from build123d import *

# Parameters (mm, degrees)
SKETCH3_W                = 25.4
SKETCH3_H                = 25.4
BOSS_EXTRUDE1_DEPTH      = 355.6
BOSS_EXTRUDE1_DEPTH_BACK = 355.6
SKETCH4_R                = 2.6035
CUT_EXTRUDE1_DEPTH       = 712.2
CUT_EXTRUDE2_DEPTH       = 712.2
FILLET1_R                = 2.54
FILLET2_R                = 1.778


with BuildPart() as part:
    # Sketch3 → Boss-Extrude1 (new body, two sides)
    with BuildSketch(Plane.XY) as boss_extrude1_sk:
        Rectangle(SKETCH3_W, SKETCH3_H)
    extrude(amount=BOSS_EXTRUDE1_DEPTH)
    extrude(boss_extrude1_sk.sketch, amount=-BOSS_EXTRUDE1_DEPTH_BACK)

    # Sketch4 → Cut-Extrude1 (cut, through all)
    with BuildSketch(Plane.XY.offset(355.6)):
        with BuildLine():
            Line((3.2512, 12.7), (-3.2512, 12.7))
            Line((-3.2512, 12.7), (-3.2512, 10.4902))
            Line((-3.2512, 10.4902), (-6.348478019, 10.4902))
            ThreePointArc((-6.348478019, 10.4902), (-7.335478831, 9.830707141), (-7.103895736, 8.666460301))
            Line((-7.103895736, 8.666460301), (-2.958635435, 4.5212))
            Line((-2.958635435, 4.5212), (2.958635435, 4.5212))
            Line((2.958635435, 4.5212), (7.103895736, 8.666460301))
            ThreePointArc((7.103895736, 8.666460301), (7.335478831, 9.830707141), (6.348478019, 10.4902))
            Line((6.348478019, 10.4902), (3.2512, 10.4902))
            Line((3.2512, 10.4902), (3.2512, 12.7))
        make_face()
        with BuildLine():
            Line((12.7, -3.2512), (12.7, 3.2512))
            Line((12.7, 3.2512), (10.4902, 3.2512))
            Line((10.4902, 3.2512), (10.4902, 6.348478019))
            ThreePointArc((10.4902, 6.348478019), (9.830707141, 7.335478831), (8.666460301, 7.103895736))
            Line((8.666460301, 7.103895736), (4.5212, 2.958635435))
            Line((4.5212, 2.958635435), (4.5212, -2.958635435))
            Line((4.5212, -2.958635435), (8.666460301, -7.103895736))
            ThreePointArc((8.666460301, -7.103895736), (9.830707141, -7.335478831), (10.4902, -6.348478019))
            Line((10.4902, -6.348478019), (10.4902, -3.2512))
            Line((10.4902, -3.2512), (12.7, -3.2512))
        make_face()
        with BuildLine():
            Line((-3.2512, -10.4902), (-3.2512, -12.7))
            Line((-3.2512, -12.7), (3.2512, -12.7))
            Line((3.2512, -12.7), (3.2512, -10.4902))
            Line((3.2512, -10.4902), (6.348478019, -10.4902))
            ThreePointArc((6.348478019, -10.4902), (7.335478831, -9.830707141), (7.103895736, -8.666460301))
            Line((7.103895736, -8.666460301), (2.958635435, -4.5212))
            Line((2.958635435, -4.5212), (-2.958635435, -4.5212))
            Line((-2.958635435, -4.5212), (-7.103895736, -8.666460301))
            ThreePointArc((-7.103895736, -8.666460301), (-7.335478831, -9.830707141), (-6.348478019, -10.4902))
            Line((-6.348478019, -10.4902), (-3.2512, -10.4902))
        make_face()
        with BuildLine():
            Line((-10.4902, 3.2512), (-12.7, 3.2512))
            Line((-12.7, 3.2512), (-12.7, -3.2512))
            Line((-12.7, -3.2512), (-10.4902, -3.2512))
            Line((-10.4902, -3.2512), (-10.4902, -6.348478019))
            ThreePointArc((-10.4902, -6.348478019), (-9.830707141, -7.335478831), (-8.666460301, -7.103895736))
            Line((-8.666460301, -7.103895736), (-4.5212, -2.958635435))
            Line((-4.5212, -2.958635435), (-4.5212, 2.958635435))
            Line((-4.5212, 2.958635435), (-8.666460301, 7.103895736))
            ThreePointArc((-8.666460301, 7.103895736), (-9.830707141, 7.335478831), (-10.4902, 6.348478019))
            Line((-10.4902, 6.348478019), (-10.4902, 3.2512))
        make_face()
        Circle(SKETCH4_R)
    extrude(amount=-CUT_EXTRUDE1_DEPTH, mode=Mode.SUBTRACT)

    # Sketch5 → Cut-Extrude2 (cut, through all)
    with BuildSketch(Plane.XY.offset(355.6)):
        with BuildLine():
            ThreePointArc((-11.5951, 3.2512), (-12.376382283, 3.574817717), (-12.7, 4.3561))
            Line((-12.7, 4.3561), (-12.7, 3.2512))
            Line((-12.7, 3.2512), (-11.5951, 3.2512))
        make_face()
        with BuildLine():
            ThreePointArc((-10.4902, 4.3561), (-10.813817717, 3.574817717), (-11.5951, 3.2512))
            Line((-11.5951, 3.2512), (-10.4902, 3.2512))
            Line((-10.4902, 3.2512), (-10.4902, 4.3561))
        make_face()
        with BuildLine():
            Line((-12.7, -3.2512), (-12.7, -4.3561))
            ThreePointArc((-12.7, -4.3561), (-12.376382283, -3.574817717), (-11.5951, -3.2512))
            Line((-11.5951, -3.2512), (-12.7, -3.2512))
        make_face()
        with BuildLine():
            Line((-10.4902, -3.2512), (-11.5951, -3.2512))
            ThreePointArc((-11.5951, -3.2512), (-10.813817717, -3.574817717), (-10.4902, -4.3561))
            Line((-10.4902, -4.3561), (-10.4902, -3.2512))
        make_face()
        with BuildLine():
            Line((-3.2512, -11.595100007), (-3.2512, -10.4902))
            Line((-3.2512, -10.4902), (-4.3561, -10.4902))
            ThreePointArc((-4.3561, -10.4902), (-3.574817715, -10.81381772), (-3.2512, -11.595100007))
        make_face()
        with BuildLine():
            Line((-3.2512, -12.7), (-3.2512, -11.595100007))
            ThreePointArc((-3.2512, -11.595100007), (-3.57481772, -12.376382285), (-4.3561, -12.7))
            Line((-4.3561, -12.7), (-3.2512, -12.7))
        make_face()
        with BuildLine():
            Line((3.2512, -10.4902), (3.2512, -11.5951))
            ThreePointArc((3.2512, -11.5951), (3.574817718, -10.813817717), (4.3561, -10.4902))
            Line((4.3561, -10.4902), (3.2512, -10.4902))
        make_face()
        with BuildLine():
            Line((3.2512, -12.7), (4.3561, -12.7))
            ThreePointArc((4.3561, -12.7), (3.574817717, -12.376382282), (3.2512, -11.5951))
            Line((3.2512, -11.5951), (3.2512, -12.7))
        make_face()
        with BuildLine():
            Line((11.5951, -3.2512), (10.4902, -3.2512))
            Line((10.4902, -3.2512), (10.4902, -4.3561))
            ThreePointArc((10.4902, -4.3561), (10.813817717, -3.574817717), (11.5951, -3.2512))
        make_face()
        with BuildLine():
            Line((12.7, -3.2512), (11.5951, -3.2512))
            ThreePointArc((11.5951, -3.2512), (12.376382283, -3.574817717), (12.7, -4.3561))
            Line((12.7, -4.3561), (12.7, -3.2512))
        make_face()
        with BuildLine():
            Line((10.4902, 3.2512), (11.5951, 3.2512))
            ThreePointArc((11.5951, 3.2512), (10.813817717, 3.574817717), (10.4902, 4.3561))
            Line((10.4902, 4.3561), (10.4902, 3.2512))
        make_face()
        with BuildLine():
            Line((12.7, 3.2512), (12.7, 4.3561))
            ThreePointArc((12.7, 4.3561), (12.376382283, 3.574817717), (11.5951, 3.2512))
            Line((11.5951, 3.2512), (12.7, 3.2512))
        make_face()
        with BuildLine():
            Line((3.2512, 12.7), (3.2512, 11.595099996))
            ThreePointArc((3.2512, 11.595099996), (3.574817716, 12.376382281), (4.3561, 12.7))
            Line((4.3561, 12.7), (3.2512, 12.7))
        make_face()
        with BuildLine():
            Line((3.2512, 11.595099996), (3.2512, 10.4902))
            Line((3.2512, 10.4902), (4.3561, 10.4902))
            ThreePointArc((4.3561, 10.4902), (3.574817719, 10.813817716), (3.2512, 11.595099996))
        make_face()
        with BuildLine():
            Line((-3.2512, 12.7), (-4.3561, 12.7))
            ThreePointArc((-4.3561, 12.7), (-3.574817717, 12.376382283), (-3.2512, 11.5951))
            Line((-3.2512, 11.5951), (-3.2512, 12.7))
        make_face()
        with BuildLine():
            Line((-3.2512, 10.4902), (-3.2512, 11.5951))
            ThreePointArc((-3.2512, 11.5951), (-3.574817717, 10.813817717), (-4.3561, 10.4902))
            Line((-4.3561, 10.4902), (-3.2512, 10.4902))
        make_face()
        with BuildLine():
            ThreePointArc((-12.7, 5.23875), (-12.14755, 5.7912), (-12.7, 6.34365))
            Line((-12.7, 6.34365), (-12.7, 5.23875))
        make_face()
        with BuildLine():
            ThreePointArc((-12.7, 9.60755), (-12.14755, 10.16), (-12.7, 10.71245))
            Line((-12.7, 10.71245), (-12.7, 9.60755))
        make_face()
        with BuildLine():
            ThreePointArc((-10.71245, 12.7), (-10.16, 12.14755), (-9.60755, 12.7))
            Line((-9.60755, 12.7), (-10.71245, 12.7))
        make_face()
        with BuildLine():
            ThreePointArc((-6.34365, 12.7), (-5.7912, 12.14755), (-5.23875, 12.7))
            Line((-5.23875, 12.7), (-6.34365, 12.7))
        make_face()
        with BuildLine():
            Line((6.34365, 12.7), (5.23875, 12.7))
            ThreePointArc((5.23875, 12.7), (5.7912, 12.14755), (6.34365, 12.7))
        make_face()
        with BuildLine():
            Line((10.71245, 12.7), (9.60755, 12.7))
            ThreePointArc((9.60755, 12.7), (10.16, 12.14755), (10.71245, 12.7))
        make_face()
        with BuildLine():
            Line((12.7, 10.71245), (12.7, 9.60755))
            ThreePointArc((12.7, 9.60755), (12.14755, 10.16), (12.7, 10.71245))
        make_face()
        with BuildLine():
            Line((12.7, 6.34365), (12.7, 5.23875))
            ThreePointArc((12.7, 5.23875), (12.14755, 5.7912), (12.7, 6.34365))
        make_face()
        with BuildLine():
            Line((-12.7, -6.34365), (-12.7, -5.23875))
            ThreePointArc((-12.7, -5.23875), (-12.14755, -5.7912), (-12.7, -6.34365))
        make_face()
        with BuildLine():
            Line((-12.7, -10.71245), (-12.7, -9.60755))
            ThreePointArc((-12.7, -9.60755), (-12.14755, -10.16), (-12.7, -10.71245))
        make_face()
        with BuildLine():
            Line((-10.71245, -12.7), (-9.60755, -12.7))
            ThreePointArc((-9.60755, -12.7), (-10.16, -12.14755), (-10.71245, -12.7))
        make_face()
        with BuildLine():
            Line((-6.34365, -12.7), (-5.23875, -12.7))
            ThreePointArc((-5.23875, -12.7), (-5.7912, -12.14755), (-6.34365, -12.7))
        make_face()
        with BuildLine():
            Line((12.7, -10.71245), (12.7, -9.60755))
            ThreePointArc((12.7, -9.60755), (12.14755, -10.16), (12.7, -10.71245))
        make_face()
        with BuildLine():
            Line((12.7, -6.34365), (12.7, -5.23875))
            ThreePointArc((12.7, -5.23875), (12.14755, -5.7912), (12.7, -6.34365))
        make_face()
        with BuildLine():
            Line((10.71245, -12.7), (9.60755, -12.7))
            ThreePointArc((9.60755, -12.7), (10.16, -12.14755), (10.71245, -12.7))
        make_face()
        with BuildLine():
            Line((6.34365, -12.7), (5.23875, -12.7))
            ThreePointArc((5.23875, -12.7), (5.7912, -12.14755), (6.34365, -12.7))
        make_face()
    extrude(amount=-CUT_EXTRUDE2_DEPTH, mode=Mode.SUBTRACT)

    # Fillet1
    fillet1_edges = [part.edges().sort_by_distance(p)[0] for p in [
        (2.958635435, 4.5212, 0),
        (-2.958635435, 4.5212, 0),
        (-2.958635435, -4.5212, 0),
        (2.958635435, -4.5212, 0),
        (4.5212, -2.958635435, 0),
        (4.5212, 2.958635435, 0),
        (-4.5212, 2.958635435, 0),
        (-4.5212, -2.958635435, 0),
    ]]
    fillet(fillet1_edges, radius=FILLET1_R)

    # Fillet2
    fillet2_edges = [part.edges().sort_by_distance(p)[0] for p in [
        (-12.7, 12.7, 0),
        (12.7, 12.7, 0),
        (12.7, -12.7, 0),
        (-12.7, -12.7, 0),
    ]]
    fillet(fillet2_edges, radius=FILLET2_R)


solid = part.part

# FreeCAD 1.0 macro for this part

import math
import FreeCAD as App
import Part
import Sketcher
from FreeCAD import Vector
Q = App.Units.Quantity


def edges_at(feature, points):
    """Names of the edges that pass closest to the given points."""
    edges = feature.Shape.Edges
    near = lambda p: min(range(len(edges)), key=lambda i: edges[i].distToShape(Part.Vertex(*p))[0])
    return sorted({f"Edge{near(p) + 1}" for p in points})

doc = App.newDocument("Part")
body = doc.addObject("PartDesign::Body", "Body")

# Sketch on XY plane
sketch1 = body.newObject("Sketcher::SketchObject", "Sketch")
sketch1.AttachmentSupport = (doc.getObject("XY_Plane"), [""])
sketch1.MapMode = "FlatFace"
sketch1.addGeometry([
    Part.LineSegment(Vector(-13, 13, 0), Vector(-13, -13, 0)),
    Part.LineSegment(Vector(-13, -13, 0), Vector(13, -13, 0)),
    Part.LineSegment(Vector(13, -13, 0), Vector(13, 13, 0)),
    Part.LineSegment(Vector(13, 13, 0), Vector(-13, 13, 0)),
], False)
sketch1.addConstraint([
    Sketcher.Constraint("Coincident", 0, 2, 1, 1),
    Sketcher.Constraint("Coincident", 1, 2, 2, 1),
    Sketcher.Constraint("Coincident", 2, 2, 3, 1),
    Sketcher.Constraint("Coincident", 3, 2, 0, 1),
    Sketcher.Constraint("Vertical", 0),
    Sketcher.Constraint("Horizontal", 1),
    Sketcher.Constraint("Vertical", 2),
    Sketcher.Constraint("Horizontal", 3),
    Sketcher.Constraint("Symmetric", 0, 2, 2, 2, -1, 1),
    Sketcher.Constraint("Equal", 3, 0),
    Sketcher.Constraint("DistanceX", 1, 1, 1, 2, Q("1 in")),
])
pad1 = body.newObject("PartDesign::Pad", "Pad")
pad1.Profile = sketch1
pad1.Type = "TwoLengths"
pad1.Length = Q("14 in")
pad1.Length2 = Q("14 in")

# Sketch on XY plane
sketch2 = body.newObject("Sketcher::SketchObject", "Sketch001")
sketch2.AttachmentSupport = (doc.getObject("XY_Plane"), [""])
sketch2.MapMode = "FlatFace"
sketch2.AttachmentOffset = App.Placement(Vector(0, 0, 14 * 25.4), App.Rotation())
sketch2.addGeometry([
    Part.LineSegment(Vector(3.3, 12.7, 0), Vector(-3.3, 12.7, 0)),  # 0
    Part.LineSegment(Vector(-3.3, 12.7, 0), Vector(-3.3, 10.5, 0)),  # 1
    Part.LineSegment(Vector(-3.3, 10.5, 0), Vector(-6.3, 10.5, 0)),  # 2
    Part.ArcOfCircle(Part.Circle(Vector(-6.3, 9.4, 0), Vector(0, 0, 1), 1.1), math.radians(90), math.radians(225)),  # 3
    Part.LineSegment(Vector(-7.1, 8.7, 0), Vector(-3, 4.5, 0)),  # 4
    Part.LineSegment(Vector(-3, 4.5, 0), Vector(3, 4.5, 0)),  # 5
    Part.LineSegment(Vector(3, 4.5, 0), Vector(7.1, 8.7, 0)),  # 6
    Part.ArcOfCircle(Part.Circle(Vector(6.3, 9.4, 0), Vector(0, 0, 1), 1.1), math.radians(-45), math.radians(90)),  # 7
    Part.LineSegment(Vector(6.3, 10.5, 0), Vector(3.3, 10.5, 0)),  # 8
    Part.LineSegment(Vector(3.3, 10.5, 0), Vector(3.3, 12.7, 0)),  # 9
    Part.LineSegment(Vector(12.7, -3.3, 0), Vector(12.7, 3.3, 0)),  # 10
    Part.LineSegment(Vector(12.7, 3.3, 0), Vector(10.5, 3.3, 0)),  # 11
    Part.LineSegment(Vector(10.5, 3.3, 0), Vector(10.5, 6.3, 0)),  # 12
    Part.ArcOfCircle(Part.Circle(Vector(9.4, 6.3, 0), Vector(0, 0, 1), 1.1), math.radians(0), math.radians(135)),  # 13
    Part.LineSegment(Vector(8.7, 7.1, 0), Vector(4.5, 3, 0)),  # 14
    Part.LineSegment(Vector(4.5, 3, 0), Vector(4.5, -3, 0)),  # 15
    Part.LineSegment(Vector(4.5, -3, 0), Vector(8.7, -7.1, 0)),  # 16
    Part.ArcOfCircle(Part.Circle(Vector(9.4, -6.3, 0), Vector(0, 0, 1), 1.1), math.radians(-135), math.radians(0)),  # 17
    Part.LineSegment(Vector(10.5, -6.3, 0), Vector(10.5, -3.3, 0)),  # 18
    Part.LineSegment(Vector(10.5, -3.3, 0), Vector(12.7, -3.3, 0)),  # 19
    Part.LineSegment(Vector(-3.3, -10.5, 0), Vector(-3.3, -12.7, 0)),  # 20
    Part.LineSegment(Vector(-3.3, -12.7, 0), Vector(3.3, -12.7, 0)),  # 21
    Part.LineSegment(Vector(3.3, -12.7, 0), Vector(3.3, -10.5, 0)),  # 22
    Part.LineSegment(Vector(3.3, -10.5, 0), Vector(6.3, -10.5, 0)),  # 23
    Part.ArcOfCircle(Part.Circle(Vector(6.3, -9.4, 0), Vector(0, 0, 1), 1.1), math.radians(-90), math.radians(45)),  # 24
    Part.LineSegment(Vector(7.1, -8.7, 0), Vector(3, -4.5, 0)),  # 25
    Part.LineSegment(Vector(3, -4.5, 0), Vector(-3, -4.5, 0)),  # 26
    Part.LineSegment(Vector(-3, -4.5, 0), Vector(-7.1, -8.7, 0)),  # 27
    Part.ArcOfCircle(Part.Circle(Vector(-6.3, -9.4, 0), Vector(0, 0, 1), 1.1), math.radians(135), math.radians(270)),  # 28
    Part.LineSegment(Vector(-6.3, -10.5, 0), Vector(-3.3, -10.5, 0)),  # 29
    Part.LineSegment(Vector(-10.5, 3.3, 0), Vector(-12.7, 3.3, 0)),  # 30
    Part.LineSegment(Vector(-12.7, 3.3, 0), Vector(-12.7, -3.3, 0)),  # 31
    Part.LineSegment(Vector(-12.7, -3.3, 0), Vector(-10.5, -3.3, 0)),  # 32
    Part.LineSegment(Vector(-10.5, -3.3, 0), Vector(-10.5, -6.3, 0)),  # 33
    Part.ArcOfCircle(Part.Circle(Vector(-9.4, -6.3, 0), Vector(0, 0, 1), 1.1), math.radians(-180), math.radians(-45)),  # 34
    Part.LineSegment(Vector(-8.7, -7.1, 0), Vector(-4.5, -3, 0)),  # 35
    Part.LineSegment(Vector(-4.5, -3, 0), Vector(-4.5, 3, 0)),  # 36
    Part.LineSegment(Vector(-4.5, 3, 0), Vector(-8.7, 7.1, 0)),  # 37
    Part.ArcOfCircle(Part.Circle(Vector(-9.4, 6.3, 0), Vector(0, 0, 1), 1.1), math.radians(45), math.radians(180)),  # 38
    Part.LineSegment(Vector(-10.5, 6.3, 0), Vector(-10.5, 3.3, 0)),  # 39
    Part.Circle(Vector(0, 0, 0), Vector(0, 0, 1), 2.6),  # 40
], False)
sketch2.addConstraint([
    Sketcher.Constraint("Coincident", 0, 2, 1, 1),
    Sketcher.Constraint("Coincident", 1, 2, 2, 1),
    Sketcher.Constraint("Tangent", 2, 2, 3, 1),
    Sketcher.Constraint("Tangent", 3, 2, 4, 1),
    Sketcher.Constraint("Coincident", 4, 2, 5, 1),
    Sketcher.Constraint("Coincident", 5, 2, 6, 1),
    Sketcher.Constraint("Tangent", 6, 2, 7, 1),
    Sketcher.Constraint("Tangent", 7, 2, 8, 1),
    Sketcher.Constraint("Coincident", 8, 2, 9, 1),
    Sketcher.Constraint("Coincident", 9, 2, 0, 1),
    Sketcher.Constraint("Coincident", 10, 2, 11, 1),
    Sketcher.Constraint("Coincident", 11, 2, 12, 1),
    Sketcher.Constraint("Tangent", 12, 2, 13, 1),
    Sketcher.Constraint("Tangent", 13, 2, 14, 1),
    Sketcher.Constraint("Coincident", 14, 2, 15, 1),
    Sketcher.Constraint("Coincident", 15, 2, 16, 1),
    Sketcher.Constraint("Tangent", 16, 2, 17, 1),
    Sketcher.Constraint("Tangent", 17, 2, 18, 1),
    Sketcher.Constraint("Coincident", 18, 2, 19, 1),
    Sketcher.Constraint("Coincident", 19, 2, 10, 1),
    Sketcher.Constraint("Coincident", 20, 2, 21, 1),
    Sketcher.Constraint("Coincident", 21, 2, 22, 1),
    Sketcher.Constraint("Coincident", 22, 2, 23, 1),
    Sketcher.Constraint("Tangent", 23, 2, 24, 1),
    Sketcher.Constraint("Tangent", 24, 2, 25, 1),
    Sketcher.Constraint("Coincident", 25, 2, 26, 1),
    Sketcher.Constraint("Coincident", 26, 2, 27, 1),
    Sketcher.Constraint("Tangent", 27, 2, 28, 1),
    Sketcher.Constraint("Tangent", 28, 2, 29, 1),
    Sketcher.Constraint("Coincident", 29, 2, 20, 1),
    Sketcher.Constraint("Coincident", 30, 2, 31, 1),
    Sketcher.Constraint("Coincident", 31, 2, 32, 1),
    Sketcher.Constraint("Coincident", 32, 2, 33, 1),
    Sketcher.Constraint("Tangent", 33, 2, 34, 1),
    Sketcher.Constraint("Tangent", 34, 2, 35, 1),
    Sketcher.Constraint("Coincident", 35, 2, 36, 1),
    Sketcher.Constraint("Coincident", 36, 2, 37, 1),
    Sketcher.Constraint("Tangent", 37, 2, 38, 1),
    Sketcher.Constraint("Tangent", 38, 2, 39, 1),
    Sketcher.Constraint("Coincident", 39, 2, 30, 1),
    Sketcher.Constraint("Horizontal", 0),
    Sketcher.Constraint("Vertical", 1),
    Sketcher.Constraint("Horizontal", 2),
    Sketcher.Constraint("Horizontal", 5),
    Sketcher.Constraint("Horizontal", 8),
    Sketcher.Constraint("Vertical", 9),
    Sketcher.Constraint("Vertical", 10),
    Sketcher.Constraint("Horizontal", 11),
    Sketcher.Constraint("Vertical", 12),
    Sketcher.Constraint("Vertical", 15),
    Sketcher.Constraint("Vertical", 18),
    Sketcher.Constraint("Horizontal", 19),
    Sketcher.Constraint("Vertical", 20),
    Sketcher.Constraint("Horizontal", 21),
    Sketcher.Constraint("Vertical", 22),
    Sketcher.Constraint("Horizontal", 23),
    Sketcher.Constraint("Horizontal", 26),
    Sketcher.Constraint("Horizontal", 29),
    Sketcher.Constraint("Horizontal", 30),
    Sketcher.Constraint("Vertical", 31),
    Sketcher.Constraint("Horizontal", 32),
    Sketcher.Constraint("Vertical", 33),
    Sketcher.Constraint("Vertical", 36),
    Sketcher.Constraint("Vertical", 39),
    Sketcher.Constraint("Coincident", 40, 3, -1, 1),
    Sketcher.Constraint("Equal", 3, 7),
    Sketcher.Constraint("Equal", 7, 13),
    Sketcher.Constraint("Equal", 13, 17),
    Sketcher.Constraint("Equal", 17, 24),
    Sketcher.Constraint("Equal", 24, 28),
    Sketcher.Constraint("Equal", 28, 34),
    Sketcher.Constraint("Equal", 34, 38),
    Sketcher.Constraint("Symmetric", 3, 3, 24, 3, -1, 1),
    Sketcher.Constraint("Symmetric", 7, 3, 28, 3, -1, 1),
    Sketcher.Constraint("Symmetric", 13, 3, 34, 3, -1, 1),
    Sketcher.Constraint("Symmetric", 17, 3, 38, 3, -1, 1),
    Sketcher.Constraint("Symmetric", 9, 2, 20, 2, -1, 1),
    Sketcher.Constraint("Symmetric", 4, 2, 25, 2, -1, 1),
    Sketcher.Constraint("Symmetric", 19, 2, 30, 2, -1, 1),
    Sketcher.Constraint("Symmetric", 14, 2, 35, 2, -1, 1),
    Sketcher.Constraint("Symmetric", 3, 3, 7, 3, -2),
    Sketcher.Constraint("Symmetric", 17, 3, 34, 3, -2),
    Sketcher.Constraint("Perpendicular", 4, 6),
    Sketcher.Constraint("Parallel", 6, 14),
    Sketcher.Constraint("Perpendicular", 14, 16),
    Sketcher.Constraint("Perpendicular", 25, 27),
    Sketcher.Constraint("Perpendicular", 35, 37),
    Sketcher.Constraint("Horizontal", 3, 2, 6, 2),
    Sketcher.Constraint("Horizontal", 11, 2, 30, 2),
    Sketcher.Constraint("Horizontal", 19, 2, 31, 2),
    Sketcher.Constraint("Vertical", 1, 2, 20, 2),
    Sketcher.Constraint("Vertical", 9, 2, 21, 2),
    Sketcher.Constraint("Equal", 32, 1),
    Sketcher.Constraint("Equal", 21, 10),
    Sketcher.Constraint("Equal", 29, 12),
    Sketcher.Constraint("Equal", 26, 15),
    Sketcher.Constraint("Diameter", 40, Q("0.205 in")),
    Sketcher.Constraint("DistanceY", -1, 1, 0, 2, Q("0.5 in")),
    Sketcher.Constraint("DistanceX", -1, 1, 10, 2, Q("0.5 in")),
    Sketcher.Constraint("DistanceX", 0, 2, 0, 1, Q("0.256 in")),
    Sketcher.Constraint("DistanceX", 11, 2, 11, 1, Q("0.087 in")),
    Sketcher.Constraint("DistanceY", 10, 2, 5, 2, Q("0.05 in")),
    Sketcher.Constraint("Radius", 3, Q("1.068322 mm")),
    Sketcher.Constraint("DistanceX", 7, 3, 13, 3, Q("0.121 in")),
])
pocket1 = body.newObject("PartDesign::Pocket", "Pocket")
pocket1.Profile = sketch2
pocket1.Type = "ThroughAll"

# Sketch on XY plane
sketch3 = body.newObject("Sketcher::SketchObject", "Sketch002")
sketch3.AttachmentSupport = (doc.getObject("XY_Plane"), [""])
sketch3.MapMode = "FlatFace"
sketch3.AttachmentOffset = App.Placement(Vector(0, 0, 14 * 25.4), App.Rotation())
sketch3.addGeometry([
    Part.ArcOfCircle(Part.Circle(Vector(-11.6, 4.4, 0), Vector(0, 0, 1), 1.1), math.radians(180), math.radians(270)),  # 0
    Part.LineSegment(Vector(-12.7, 4.4, 0), Vector(-12.7, 3.3, 0)),  # 1
    Part.LineSegment(Vector(-12.7, 3.3, 0), Vector(-11.6, 3.3, 0)),  # 2
    Part.ArcOfCircle(Part.Circle(Vector(-11.6, 4.4, 0), Vector(0, 0, 1), 1.1), math.radians(-90), math.radians(0)),  # 3
    Part.LineSegment(Vector(-11.6, 3.3, 0), Vector(-10.5, 3.3, 0)),  # 4
    Part.LineSegment(Vector(-10.5, 3.3, 0), Vector(-10.5, 4.4, 0)),  # 5
    Part.LineSegment(Vector(-12.7, -3.3, 0), Vector(-12.7, -4.4, 0)),  # 6
    Part.ArcOfCircle(Part.Circle(Vector(-11.6, -4.4, 0), Vector(0, 0, 1), 1.1), math.radians(90), math.radians(180)),  # 7
    Part.LineSegment(Vector(-11.6, -3.3, 0), Vector(-12.7, -3.3, 0)),  # 8
    Part.LineSegment(Vector(-10.5, -3.3, 0), Vector(-11.6, -3.3, 0)),  # 9
    Part.ArcOfCircle(Part.Circle(Vector(-11.6, -4.4, 0), Vector(0, 0, 1), 1.1), math.radians(0), math.radians(90)),  # 10
    Part.LineSegment(Vector(-10.5, -4.4, 0), Vector(-10.5, -3.3, 0)),  # 11
    Part.LineSegment(Vector(-3.3, -11.6, 0), Vector(-3.3, -10.5, 0)),  # 12
    Part.LineSegment(Vector(-3.3, -10.5, 0), Vector(-4.4, -10.5, 0)),  # 13
    Part.ArcOfCircle(Part.Circle(Vector(-4.4, -11.6, 0), Vector(0, 0, 1), 1.1), math.radians(0), math.radians(90)),  # 14
    Part.LineSegment(Vector(-3.3, -12.7, 0), Vector(-3.3, -11.6, 0)),  # 15
    Part.ArcOfCircle(Part.Circle(Vector(-4.4, -11.6, 0), Vector(0, 0, 1), 1.1), math.radians(-90), math.radians(0)),  # 16
    Part.LineSegment(Vector(-4.4, -12.7, 0), Vector(-3.3, -12.7, 0)),  # 17
    Part.LineSegment(Vector(3.3, -10.5, 0), Vector(3.3, -11.6, 0)),  # 18
    Part.ArcOfCircle(Part.Circle(Vector(4.4, -11.6, 0), Vector(0, 0, 1), 1.1), math.radians(90), math.radians(180)),  # 19
    Part.LineSegment(Vector(4.4, -10.5, 0), Vector(3.3, -10.5, 0)),  # 20
    Part.LineSegment(Vector(3.3, -12.7, 0), Vector(4.4, -12.7, 0)),  # 21
    Part.ArcOfCircle(Part.Circle(Vector(4.4, -11.6, 0), Vector(0, 0, 1), 1.1), math.radians(180), math.radians(270)),  # 22
    Part.LineSegment(Vector(3.3, -11.6, 0), Vector(3.3, -12.7, 0)),  # 23
    Part.LineSegment(Vector(11.6, -3.3, 0), Vector(10.5, -3.3, 0)),  # 24
    Part.LineSegment(Vector(10.5, -3.3, 0), Vector(10.5, -4.4, 0)),  # 25
    Part.ArcOfCircle(Part.Circle(Vector(11.6, -4.4, 0), Vector(0, 0, 1), 1.1), math.radians(90), math.radians(180)),  # 26
    Part.LineSegment(Vector(12.7, -3.3, 0), Vector(11.6, -3.3, 0)),  # 27
    Part.ArcOfCircle(Part.Circle(Vector(11.6, -4.4, 0), Vector(0, 0, 1), 1.1), math.radians(0), math.radians(90)),  # 28
    Part.LineSegment(Vector(12.7, -4.4, 0), Vector(12.7, -3.3, 0)),  # 29
    Part.LineSegment(Vector(10.5, 3.3, 0), Vector(11.6, 3.3, 0)),  # 30
    Part.ArcOfCircle(Part.Circle(Vector(11.6, 4.4, 0), Vector(0, 0, 1), 1.1), math.radians(180), math.radians(270)),  # 31
    Part.LineSegment(Vector(10.5, 4.4, 0), Vector(10.5, 3.3, 0)),  # 32
    Part.LineSegment(Vector(12.7, 3.3, 0), Vector(12.7, 4.4, 0)),  # 33
    Part.ArcOfCircle(Part.Circle(Vector(11.6, 4.4, 0), Vector(0, 0, 1), 1.1), math.radians(-90), math.radians(0)),  # 34
    Part.LineSegment(Vector(11.6, 3.3, 0), Vector(12.7, 3.3, 0)),  # 35
    Part.LineSegment(Vector(3.3, 12.7, 0), Vector(3.3, 11.6, 0)),  # 36
    Part.ArcOfCircle(Part.Circle(Vector(4.4, 11.6, 0), Vector(0, 0, 1), 1.1), math.radians(90), math.radians(180)),  # 37
    Part.LineSegment(Vector(4.4, 12.7, 0), Vector(3.3, 12.7, 0)),  # 38
    Part.LineSegment(Vector(3.3, 11.6, 0), Vector(3.3, 10.5, 0)),  # 39
    Part.LineSegment(Vector(3.3, 10.5, 0), Vector(4.4, 10.5, 0)),  # 40
    Part.ArcOfCircle(Part.Circle(Vector(4.4, 11.6, 0), Vector(0, 0, 1), 1.1), math.radians(-180), math.radians(-90)),  # 41
    Part.LineSegment(Vector(-3.3, 12.7, 0), Vector(-4.4, 12.7, 0)),  # 42
    Part.ArcOfCircle(Part.Circle(Vector(-4.4, 11.6, 0), Vector(0, 0, 1), 1.1), math.radians(0), math.radians(90)),  # 43
    Part.LineSegment(Vector(-3.3, 11.6, 0), Vector(-3.3, 12.7, 0)),  # 44
    Part.LineSegment(Vector(-3.3, 10.5, 0), Vector(-3.3, 11.6, 0)),  # 45
    Part.ArcOfCircle(Part.Circle(Vector(-4.4, 11.6, 0), Vector(0, 0, 1), 1.1), math.radians(-90), math.radians(0)),  # 46
    Part.LineSegment(Vector(-4.4, 10.5, 0), Vector(-3.3, 10.5, 0)),  # 47
    Part.ArcOfCircle(Part.Circle(Vector(-12.7, 5.8, 0), Vector(0, 0, 1), 0.6), math.radians(-90), math.radians(90)),  # 48
    Part.LineSegment(Vector(-12.7, 6.3, 0), Vector(-12.7, 5.2, 0)),  # 49
    Part.ArcOfCircle(Part.Circle(Vector(-12.7, 10.2, 0), Vector(0, 0, 1), 0.6), math.radians(-90), math.radians(90)),  # 50
    Part.LineSegment(Vector(-12.7, 10.7, 0), Vector(-12.7, 9.6, 0)),  # 51
    Part.ArcOfCircle(Part.Circle(Vector(-10.2, 12.7, 0), Vector(0, 0, 1), 0.6), math.radians(180), math.radians(360)),  # 52
    Part.LineSegment(Vector(-9.6, 12.7, 0), Vector(-10.7, 12.7, 0)),  # 53
    Part.ArcOfCircle(Part.Circle(Vector(-5.8, 12.7, 0), Vector(0, 0, 1), 0.6), math.radians(180), math.radians(360)),  # 54
    Part.LineSegment(Vector(-5.2, 12.7, 0), Vector(-6.3, 12.7, 0)),  # 55
    Part.LineSegment(Vector(6.3, 12.7, 0), Vector(5.2, 12.7, 0)),  # 56
    Part.ArcOfCircle(Part.Circle(Vector(5.8, 12.7, 0), Vector(0, 0, 1), 0.6), math.radians(180), math.radians(360)),  # 57
    Part.LineSegment(Vector(10.7, 12.7, 0), Vector(9.6, 12.7, 0)),  # 58
    Part.ArcOfCircle(Part.Circle(Vector(10.2, 12.7, 0), Vector(0, 0, 1), 0.6), math.radians(180), math.radians(360)),  # 59
    Part.LineSegment(Vector(12.7, 9.6, 0), Vector(12.7, 10.7, 0)),  # 60
    Part.ArcOfCircle(Part.Circle(Vector(12.7, 10.2, 0), Vector(0, 0, 1), 0.6), math.radians(90), math.radians(270)),  # 61
    Part.LineSegment(Vector(12.7, 5.2, 0), Vector(12.7, 6.3, 0)),  # 62
    Part.ArcOfCircle(Part.Circle(Vector(12.7, 5.8, 0), Vector(0, 0, 1), 0.6), math.radians(90), math.radians(270)),  # 63
    Part.LineSegment(Vector(-12.7, -5.2, 0), Vector(-12.7, -6.3, 0)),  # 64
    Part.ArcOfCircle(Part.Circle(Vector(-12.7, -5.8, 0), Vector(0, 0, 1), 0.6), math.radians(-90), math.radians(90)),  # 65
    Part.LineSegment(Vector(-12.7, -9.6, 0), Vector(-12.7, -10.7, 0)),  # 66
    Part.ArcOfCircle(Part.Circle(Vector(-12.7, -10.2, 0), Vector(0, 0, 1), 0.6), math.radians(-90), math.radians(90)),  # 67
    Part.LineSegment(Vector(-10.7, -12.7, 0), Vector(-9.6, -12.7, 0)),  # 68
    Part.ArcOfCircle(Part.Circle(Vector(-10.2, -12.7, 0), Vector(0, 0, 1), 0.6), math.radians(0), math.radians(180)),  # 69
    Part.LineSegment(Vector(-6.3, -12.7, 0), Vector(-5.2, -12.7, 0)),  # 70
    Part.ArcOfCircle(Part.Circle(Vector(-5.8, -12.7, 0), Vector(0, 0, 1), 0.6), math.radians(0), math.radians(180)),  # 71
    Part.LineSegment(Vector(12.7, -10.7, 0), Vector(12.7, -9.6, 0)),  # 72
    Part.ArcOfCircle(Part.Circle(Vector(12.7, -10.2, 0), Vector(0, 0, 1), 0.6), math.radians(90), math.radians(270)),  # 73
    Part.LineSegment(Vector(12.7, -6.3, 0), Vector(12.7, -5.2, 0)),  # 74
    Part.ArcOfCircle(Part.Circle(Vector(12.7, -5.8, 0), Vector(0, 0, 1), 0.6), math.radians(90), math.radians(270)),  # 75
    Part.LineSegment(Vector(9.6, -12.7, 0), Vector(10.7, -12.7, 0)),  # 76
    Part.ArcOfCircle(Part.Circle(Vector(10.2, -12.7, 0), Vector(0, 0, 1), 0.6), math.radians(0), math.radians(180)),  # 77
    Part.LineSegment(Vector(5.2, -12.7, 0), Vector(6.3, -12.7, 0)),  # 78
    Part.ArcOfCircle(Part.Circle(Vector(5.8, -12.7, 0), Vector(0, 0, 1), 0.6), math.radians(0), math.radians(180)),  # 79
], False)
sketch3.addConstraint([
    Sketcher.Constraint("Tangent", 0, 1, 1, 1),
    Sketcher.Constraint("Coincident", 1, 2, 2, 1),
    Sketcher.Constraint("Tangent", 2, 2, 0, 2),
    Sketcher.Constraint("Tangent", 3, 1, 4, 1),
    Sketcher.Constraint("Coincident", 4, 2, 5, 1),
    Sketcher.Constraint("Tangent", 5, 2, 3, 2),
    Sketcher.Constraint("Tangent", 6, 2, 7, 2),
    Sketcher.Constraint("Tangent", 7, 1, 8, 1),
    Sketcher.Constraint("Coincident", 8, 2, 6, 1),
    Sketcher.Constraint("Tangent", 9, 2, 10, 2),
    Sketcher.Constraint("Tangent", 10, 1, 11, 1),
    Sketcher.Constraint("Coincident", 11, 2, 9, 1),
    Sketcher.Constraint("Coincident", 12, 2, 13, 1),
    Sketcher.Constraint("Tangent", 13, 2, 14, 2),
    Sketcher.Constraint("Tangent", 14, 1, 12, 1),
    Sketcher.Constraint("Tangent", 15, 2, 16, 2),
    Sketcher.Constraint("Tangent", 16, 1, 17, 1),
    Sketcher.Constraint("Coincident", 17, 2, 15, 1),
    Sketcher.Constraint("Tangent", 18, 2, 19, 2),
    Sketcher.Constraint("Tangent", 19, 1, 20, 1),
    Sketcher.Constraint("Coincident", 20, 2, 18, 1),
    Sketcher.Constraint("Tangent", 21, 2, 22, 2),
    Sketcher.Constraint("Tangent", 22, 1, 23, 1),
    Sketcher.Constraint("Coincident", 23, 2, 21, 1),
    Sketcher.Constraint("Coincident", 24, 2, 25, 1),
    Sketcher.Constraint("Tangent", 25, 2, 26, 2),
    Sketcher.Constraint("Tangent", 26, 1, 24, 1),
    Sketcher.Constraint("Tangent", 27, 2, 28, 2),
    Sketcher.Constraint("Tangent", 28, 1, 29, 1),
    Sketcher.Constraint("Coincident", 29, 2, 27, 1),
    Sketcher.Constraint("Tangent", 30, 2, 31, 2),
    Sketcher.Constraint("Tangent", 31, 1, 32, 1),
    Sketcher.Constraint("Coincident", 32, 2, 30, 1),
    Sketcher.Constraint("Tangent", 33, 2, 34, 2),
    Sketcher.Constraint("Tangent", 34, 1, 35, 1),
    Sketcher.Constraint("Coincident", 35, 2, 33, 1),
    Sketcher.Constraint("Tangent", 36, 2, 37, 2),
    Sketcher.Constraint("Tangent", 37, 1, 38, 1),
    Sketcher.Constraint("Coincident", 38, 2, 36, 1),
    Sketcher.Constraint("Coincident", 39, 2, 40, 1),
    Sketcher.Constraint("Tangent", 40, 2, 41, 2),
    Sketcher.Constraint("Tangent", 41, 1, 39, 1),
    Sketcher.Constraint("Tangent", 42, 2, 43, 2),
    Sketcher.Constraint("Tangent", 43, 1, 44, 1),
    Sketcher.Constraint("Coincident", 44, 2, 42, 1),
    Sketcher.Constraint("Tangent", 45, 2, 46, 2),
    Sketcher.Constraint("Tangent", 46, 1, 47, 1),
    Sketcher.Constraint("Coincident", 47, 2, 45, 1),
    Sketcher.Constraint("Coincident", 48, 1, 49, 2),
    Sketcher.Constraint("Coincident", 49, 1, 48, 2),
    Sketcher.Constraint("Coincident", 50, 1, 51, 2),
    Sketcher.Constraint("Coincident", 51, 1, 50, 2),
    Sketcher.Constraint("Coincident", 52, 1, 53, 2),
    Sketcher.Constraint("Coincident", 53, 1, 52, 2),
    Sketcher.Constraint("Coincident", 54, 1, 55, 2),
    Sketcher.Constraint("Coincident", 55, 1, 54, 2),
    Sketcher.Constraint("Coincident", 56, 1, 57, 2),
    Sketcher.Constraint("Coincident", 57, 1, 56, 2),
    Sketcher.Constraint("Coincident", 58, 1, 59, 2),
    Sketcher.Constraint("Coincident", 59, 1, 58, 2),
    Sketcher.Constraint("Coincident", 60, 1, 61, 2),
    Sketcher.Constraint("Coincident", 61, 1, 60, 2),
    Sketcher.Constraint("Coincident", 62, 1, 63, 2),
    Sketcher.Constraint("Coincident", 63, 1, 62, 2),
    Sketcher.Constraint("Coincident", 64, 1, 65, 2),
    Sketcher.Constraint("Coincident", 65, 1, 64, 2),
    Sketcher.Constraint("Coincident", 66, 1, 67, 2),
    Sketcher.Constraint("Coincident", 67, 1, 66, 2),
    Sketcher.Constraint("Coincident", 68, 1, 69, 2),
    Sketcher.Constraint("Coincident", 69, 1, 68, 2),
    Sketcher.Constraint("Coincident", 70, 1, 71, 2),
    Sketcher.Constraint("Coincident", 71, 1, 70, 2),
    Sketcher.Constraint("Coincident", 72, 1, 73, 2),
    Sketcher.Constraint("Coincident", 73, 1, 72, 2),
    Sketcher.Constraint("Coincident", 74, 1, 75, 2),
    Sketcher.Constraint("Coincident", 75, 1, 74, 2),
    Sketcher.Constraint("Coincident", 76, 1, 77, 2),
    Sketcher.Constraint("Coincident", 77, 1, 76, 2),
    Sketcher.Constraint("Coincident", 78, 1, 79, 2),
    Sketcher.Constraint("Coincident", 79, 1, 78, 2),
    Sketcher.Constraint("Vertical", 1),
    Sketcher.Constraint("Horizontal", 2),
    Sketcher.Constraint("Horizontal", 4),
    Sketcher.Constraint("Vertical", 5),
    Sketcher.Constraint("Vertical", 6),
    Sketcher.Constraint("Horizontal", 8),
    Sketcher.Constraint("Horizontal", 9),
    Sketcher.Constraint("Vertical", 11),
    Sketcher.Constraint("Vertical", 12),
    Sketcher.Constraint("Horizontal", 13),
    Sketcher.Constraint("Vertical", 15),
    Sketcher.Constraint("Horizontal", 17),
    Sketcher.Constraint("Vertical", 18),
    Sketcher.Constraint("Horizontal", 20),
    Sketcher.Constraint("Horizontal", 21),
    Sketcher.Constraint("Vertical", 23),
    Sketcher.Constraint("Horizontal", 24),
    Sketcher.Constraint("Vertical", 25),
    Sketcher.Constraint("Horizontal", 27),
    Sketcher.Constraint("Vertical", 29),
    Sketcher.Constraint("Horizontal", 30),
    Sketcher.Constraint("Vertical", 32),
    Sketcher.Constraint("Vertical", 33),
    Sketcher.Constraint("Horizontal", 35),
    Sketcher.Constraint("Vertical", 36),
    Sketcher.Constraint("Horizontal", 38),
    Sketcher.Constraint("Vertical", 39),
    Sketcher.Constraint("Horizontal", 40),
    Sketcher.Constraint("Horizontal", 42),
    Sketcher.Constraint("Vertical", 44),
    Sketcher.Constraint("Vertical", 45),
    Sketcher.Constraint("Horizontal", 47),
    Sketcher.Constraint("Vertical", 49),
    Sketcher.Constraint("Vertical", 51),
    Sketcher.Constraint("Horizontal", 53),
    Sketcher.Constraint("Horizontal", 55),
    Sketcher.Constraint("Horizontal", 56),
    Sketcher.Constraint("Horizontal", 58),
    Sketcher.Constraint("Vertical", 60),
    Sketcher.Constraint("Vertical", 62),
    Sketcher.Constraint("Vertical", 64),
    Sketcher.Constraint("Vertical", 66),
    Sketcher.Constraint("Horizontal", 68),
    Sketcher.Constraint("Horizontal", 70),
    Sketcher.Constraint("Vertical", 72),
    Sketcher.Constraint("Vertical", 74),
    Sketcher.Constraint("Horizontal", 76),
    Sketcher.Constraint("Horizontal", 78),
    Sketcher.Constraint("Coincident", 3, 3, 0, 3),
    Sketcher.Constraint("Coincident", 10, 3, 7, 3),
    Sketcher.Constraint("Coincident", 16, 3, 14, 3),
    Sketcher.Constraint("Coincident", 22, 3, 19, 3),
    Sketcher.Constraint("Coincident", 28, 3, 26, 3),
    Sketcher.Constraint("Coincident", 34, 3, 31, 3),
    Sketcher.Constraint("Coincident", 41, 3, 37, 3),
    Sketcher.Constraint("Coincident", 46, 3, 43, 3),
    Sketcher.Constraint("Equal", 0, 3),
    Sketcher.Constraint("Equal", 3, 7),
    Sketcher.Constraint("Equal", 7, 10),
    Sketcher.Constraint("Equal", 10, 14),
    Sketcher.Constraint("Equal", 14, 16),
    Sketcher.Constraint("Equal", 16, 19),
    Sketcher.Constraint("Equal", 19, 22),
    Sketcher.Constraint("Equal", 22, 26),
    Sketcher.Constraint("Equal", 26, 28),
    Sketcher.Constraint("Equal", 28, 31),
    Sketcher.Constraint("Equal", 31, 34),
    Sketcher.Constraint("Equal", 34, 37),
    Sketcher.Constraint("Equal", 37, 41),
    Sketcher.Constraint("Equal", 41, 43),
    Sketcher.Constraint("Equal", 43, 46),
    Sketcher.Constraint("Equal", 48, 50),
    Sketcher.Constraint("Equal", 50, 52),
    Sketcher.Constraint("Equal", 52, 54),
    Sketcher.Constraint("Equal", 54, 57),
    Sketcher.Constraint("Equal", 57, 59),
    Sketcher.Constraint("Equal", 59, 61),
    Sketcher.Constraint("Equal", 61, 63),
    Sketcher.Constraint("Equal", 63, 65),
    Sketcher.Constraint("Equal", 65, 67),
    Sketcher.Constraint("Equal", 67, 69),
    Sketcher.Constraint("Equal", 69, 71),
    Sketcher.Constraint("Equal", 71, 73),
    Sketcher.Constraint("Equal", 73, 75),
    Sketcher.Constraint("Equal", 75, 77),
    Sketcher.Constraint("Equal", 77, 79),
    Sketcher.Constraint("Symmetric", 0, 3, 26, 3, -1, 1),
    Sketcher.Constraint("Symmetric", 7, 3, 31, 3, -1, 1),
    Sketcher.Constraint("Symmetric", 14, 3, 37, 3, -1, 1),
    Sketcher.Constraint("Symmetric", 19, 3, 43, 3, -1, 1),
    Sketcher.Constraint("Symmetric", 63, 3, 65, 3, -1, 1),
    Sketcher.Constraint("Symmetric", 61, 3, 67, 3, -1, 1),
    Sketcher.Constraint("Symmetric", 59, 3, 69, 3, -1, 1),
    Sketcher.Constraint("Symmetric", 57, 3, 71, 3, -1, 1),
    Sketcher.Constraint("Symmetric", 50, 3, 73, 3, -1, 1),
    Sketcher.Constraint("Symmetric", 48, 3, 75, 3, -1, 1),
    Sketcher.Constraint("Symmetric", 52, 3, 77, 3, -1, 1),
    Sketcher.Constraint("Symmetric", 54, 3, 79, 3, -1, 1),
    Sketcher.Constraint("Symmetric", 14, 3, 19, 3, -2),
    Sketcher.Constraint("Symmetric", 7, 3, 26, 3, -2),
    Sketcher.Constraint("Symmetric", 54, 3, 57, 3, -2),
    Sketcher.Constraint("Symmetric", 52, 3, 59, 3, -2),
    Sketcher.Constraint("Symmetric", 50, 3, 61, 3, -2),
    Sketcher.Constraint("Symmetric", 48, 3, 63, 3, -2),
    Sketcher.Constraint("Horizontal", 52, 3, 54, 3),
    Sketcher.Constraint("Horizontal", 79, 3, 16, 1),
    Sketcher.Constraint("Horizontal", 44, 2, 52, 1),
    Sketcher.Constraint("Horizontal", 53, 1, 54, 1),
    Sketcher.Constraint("Horizontal", 55, 1, 56, 1),
    Sketcher.Constraint("Horizontal", 57, 1, 58, 1),
    Sketcher.Constraint("Horizontal", 23, 2, 68, 1),
    Sketcher.Constraint("Horizontal", 69, 1, 70, 1),
    Sketcher.Constraint("Horizontal", 71, 1, 76, 1),
    Sketcher.Constraint("Horizontal", 77, 1, 78, 1),
    Sketcher.Constraint("Vertical", 48, 3, 50, 3),
    Sketcher.Constraint("Vertical", 67, 3, 0, 1),
    Sketcher.Constraint("Vertical", 8, 2, 48, 1),
    Sketcher.Constraint("Vertical", 49, 1, 50, 1),
    Sketcher.Constraint("Vertical", 35, 2, 60, 1),
    Sketcher.Constraint("Vertical", 61, 1, 62, 1),
    Sketcher.Constraint("Vertical", 51, 1, 64, 1),
    Sketcher.Constraint("Vertical", 65, 1, 66, 1),
    Sketcher.Constraint("Vertical", 63, 1, 72, 1),
    Sketcher.Constraint("Vertical", 73, 1, 74, 1),
    Sketcher.Constraint("Equal", 47, 53),
    Sketcher.Constraint("DistanceX", 48, 3, -1, 1, Q("0.5 in")),
    Sketcher.Constraint("DistanceY", -1, 1, 50, 3, Q("0.4 in")),
    Sketcher.Constraint("DistanceX", 52, 3, -1, 1, Q("0.4 in")),
    Sketcher.Constraint("DistanceY", -1, 1, 52, 3, Q("0.5 in")),
    Sketcher.Constraint("Radius", 0, Q("0.0435 in")),
    Sketcher.Constraint("DistanceY", -1, 1, 48, 3, Q("0.228 in")),
    Sketcher.Constraint("DistanceX", 54, 3, -1, 1, Q("0.228 in")),
    Sketcher.Constraint("DistanceY", -1, 1, 1, 2, Q("0.128 in")),
    Sketcher.Constraint("DistanceX", 12, 2, -1, 1, Q("0.128 in")),
])
pocket2 = body.newObject("PartDesign::Pocket", "Pocket001")
pocket2.Profile = sketch3
pocket2.Type = "ThroughAll"
doc.recompute()

fillet = body.newObject("PartDesign::Fillet", "Fillet")
fillet.Base = (pocket2, edges_at(pocket2, [
    (2.959, 4.521, 0),
    (-2.959, 4.521, 0),
    (-2.959, -4.521, 0),
    (2.959, -4.521, 0),
    (4.521, -2.959, 0),
    (4.521, 2.959, 0),
    (-4.521, 2.959, 0),
    (-4.521, -2.959, 0),
]))
fillet.Radius = Q("0.1 in")
doc.recompute()

fillet2 = body.newObject("PartDesign::Fillet", "Fillet001")
fillet2.Base = (fillet, edges_at(fillet, [
    (-12.7, 12.7, 0),
    (12.7, 12.7, 0),
    (12.7, -12.7, 0),
    (-12.7, -12.7, 0),
]))
fillet2.Radius = Q("0.07 in")

doc.recompute()
